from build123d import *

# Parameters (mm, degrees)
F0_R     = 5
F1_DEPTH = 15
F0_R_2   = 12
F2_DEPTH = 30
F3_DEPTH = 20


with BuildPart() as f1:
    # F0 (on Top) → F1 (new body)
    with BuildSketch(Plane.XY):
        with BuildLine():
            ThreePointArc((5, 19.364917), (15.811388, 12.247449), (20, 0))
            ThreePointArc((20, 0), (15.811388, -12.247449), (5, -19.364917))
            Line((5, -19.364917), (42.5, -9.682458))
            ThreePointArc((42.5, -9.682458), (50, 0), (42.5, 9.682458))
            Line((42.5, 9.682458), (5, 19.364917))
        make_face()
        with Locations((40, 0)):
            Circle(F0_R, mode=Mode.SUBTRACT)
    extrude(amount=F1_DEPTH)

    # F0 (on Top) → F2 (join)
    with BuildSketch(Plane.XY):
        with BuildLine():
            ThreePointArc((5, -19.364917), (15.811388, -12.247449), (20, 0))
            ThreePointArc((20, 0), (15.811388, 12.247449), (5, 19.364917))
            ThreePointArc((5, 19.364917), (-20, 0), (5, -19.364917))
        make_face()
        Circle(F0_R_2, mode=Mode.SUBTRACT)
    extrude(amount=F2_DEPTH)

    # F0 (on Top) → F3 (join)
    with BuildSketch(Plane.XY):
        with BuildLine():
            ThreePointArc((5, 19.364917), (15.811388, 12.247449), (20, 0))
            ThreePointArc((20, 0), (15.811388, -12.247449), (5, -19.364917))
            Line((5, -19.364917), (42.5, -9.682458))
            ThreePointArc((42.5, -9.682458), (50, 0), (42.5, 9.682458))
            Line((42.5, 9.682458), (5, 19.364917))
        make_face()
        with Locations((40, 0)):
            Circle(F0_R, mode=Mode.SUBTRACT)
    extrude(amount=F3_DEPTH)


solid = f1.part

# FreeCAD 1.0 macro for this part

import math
import FreeCAD as App
import Part
import Sketcher
from FreeCAD import Vector

doc = App.newDocument("Part")
params = doc.addObject("Spreadsheet::Sheet", "Params")
for row, (alias, value) in enumerate([
    ("sketch1_diameter", "10 mm"),
    ("sketch1_radius", "20.000001 mm"),
    ("sketch1_radius2", "10 mm"),
    ("pad1_length", "15 mm"),
    ("sketch2_diameter", "24 mm"),
    ("sketch2_radius", "20.000001 mm"),
    ("pad2_length", "30 mm"),
    ("sketch3_diameter", "10 mm"),
    ("sketch3_radius", "20.000001 mm"),
    ("sketch3_radius2", "10 mm"),
    ("pad3_length", "20 mm"),
], start=1):
    params.set(f"A{row}", alias)
    params.set(f"B{row}", "=" + value)
    params.setAlias(f"B{row}", alias)

body = doc.addObject("PartDesign::Body", "Body")

# Sketch on XY plane
sketch1 = body.newObject("Sketcher::SketchObject", "Sketch")
sketch1.AttachmentSupport = (doc.getObject("XY_Plane"), [""])
sketch1.MapMode = "FlatFace"
sketch1.addGeometry(Part.ArcOfCircle(Part.Circle(Vector(-0.000001, 0, 0), Vector(0, 0, 1), 20.000001), math.radians(0.000001), math.radians(75.522486)), False)
sketch1.addGeometry(Part.ArcOfCircle(Part.Circle(Vector(-0.000001, 0, 0), Vector(0, 0, 1), 20.000001), math.radians(-75.522486), math.radians(-0.000001)), False)
sketch1.addGeometry(Part.LineSegment(Vector(5, -19.364917, 0), Vector(42.5, -9.682458, 0)), False)
sketch1.addGeometry(Part.ArcOfCircle(Part.Circle(Vector(40, 0, 0), Vector(0, 0, 1), 10), math.radians(-75.52249), math.radians(75.52249)), False)
sketch1.addGeometry(Part.LineSegment(Vector(42.5, 9.682458, 0), Vector(5, 19.364917, 0)), False)
sketch1.addGeometry(Part.Circle(Vector(40, 0, 0), Vector(0, 0, 1), 5), False)
sketch1.addConstraint(Sketcher.Constraint("Tangent", 0, 1, 1, 2))
sketch1.addConstraint(Sketcher.Constraint("Tangent", 1, 1, 2, 1))
sketch1.addConstraint(Sketcher.Constraint("Tangent", 2, 2, 3, 1))
sketch1.addConstraint(Sketcher.Constraint("Tangent", 3, 2, 4, 1))
sketch1.addConstraint(Sketcher.Constraint("Tangent", 4, 2, 0, 2))
sketch1.addConstraint(Sketcher.Constraint("Coincident", 0, 3, -1, 1))
sketch1.addConstraint(Sketcher.Constraint("Coincident", 5, 3, 3, 3))
sketch1.addConstraint(Sketcher.Constraint("Equal", 0, 1))
sketch1.addConstraint(Sketcher.Constraint("PointOnObject", 3, 3, -1))
sketch1.addConstraint(Sketcher.Constraint("PointOnObject", 0, 1, -1))
sketch1.addConstraint(Sketcher.Constraint("Diameter", 5, 10.0))
sketch1.addConstraint(Sketcher.Constraint("Radius", 0, 20.000001))
sketch1.addConstraint(Sketcher.Constraint("Radius", 3, 10.0))
sketch1.addConstraint(Sketcher.Constraint("DistanceX", -1, 1, 3, 3, 40.0))
sketch1.setExpression("Constraints[10]", "Params.sketch1_diameter")
sketch1.setExpression("Constraints[11]", "Params.sketch1_radius")
sketch1.setExpression("Constraints[12]", "Params.sketch1_radius2")
pad1 = body.newObject("PartDesign::Pad", "Pad")
pad1.Profile = sketch1
pad1.setExpression("Length", "Params.pad1_length")

# Sketch on XY plane
sketch2 = body.newObject("Sketcher::SketchObject", "Sketch001")
sketch2.AttachmentSupport = (doc.getObject("XY_Plane"), [""])
sketch2.MapMode = "FlatFace"
sketch2.addGeometry(Part.ArcOfCircle(Part.Circle(Vector(-0.000001, 0, 0), Vector(0, 0, 1), 20.000001), math.radians(-75.522486), math.radians(-0.000001)), False)
sketch2.addGeometry(Part.ArcOfCircle(Part.Circle(Vector(-0.000001, 0, 0), Vector(0, 0, 1), 20.000001), math.radians(0.000001), math.radians(75.522486)), False)
sketch2.addGeometry(Part.ArcOfCircle(Part.Circle(Vector(0, 0, 0), Vector(0, 0, 1), 20), math.radians(75.522489), math.radians(284.477511)), False)
sketch2.addGeometry(Part.Circle(Vector(0, 0, 0), Vector(0, 0, 1), 12), False)
sketch2.addConstraint(Sketcher.Constraint("Tangent", 0, 2, 1, 1))
sketch2.addConstraint(Sketcher.Constraint("Tangent", 1, 2, 2, 1))
sketch2.addConstraint(Sketcher.Constraint("Tangent", 2, 2, 0, 1))
sketch2.addConstraint(Sketcher.Constraint("Coincident", 0, 3, -1, 1))
sketch2.addConstraint(Sketcher.Constraint("Coincident", 3, 3, -1, 1))
sketch2.addConstraint(Sketcher.Constraint("PointOnObject", 0, 2, -1))
sketch2.addConstraint(Sketcher.Constraint("Vertical", 1, 2, 2, 2))
sketch2.addConstraint(Sketcher.Constraint("Diameter", 3, 24.0))
sketch2.addConstraint(Sketcher.Constraint("Radius", 0, 20.000001))
sketch2.addConstraint(Sketcher.Constraint("DistanceX", -1, 1, 1, 2, 5.0))
sketch2.setExpression("Constraints[7]", "Params.sketch2_diameter")
sketch2.setExpression("Constraints[8]", "Params.sketch2_radius")
pad2 = body.newObject("PartDesign::Pad", "Pad001")
pad2.Profile = sketch2
pad2.setExpression("Length", "Params.pad2_length")

# Sketch on XY plane
sketch3 = body.newObject("Sketcher::SketchObject", "Sketch002")
sketch3.AttachmentSupport = (doc.getObject("XY_Plane"), [""])
sketch3.MapMode = "FlatFace"
sketch3.addGeometry(Part.ArcOfCircle(Part.Circle(Vector(-0.000001, 0, 0), Vector(0, 0, 1), 20.000001), math.radians(0.000001), math.radians(75.522486)), False)
sketch3.addGeometry(Part.ArcOfCircle(Part.Circle(Vector(-0.000001, 0, 0), Vector(0, 0, 1), 20.000001), math.radians(-75.522486), math.radians(-0.000001)), False)
sketch3.addGeometry(Part.LineSegment(Vector(5, -19.364917, 0), Vector(42.5, -9.682458, 0)), False)
sketch3.addGeometry(Part.ArcOfCircle(Part.Circle(Vector(40, 0, 0), Vector(0, 0, 1), 10), math.radians(-75.52249), math.radians(75.52249)), False)
sketch3.addGeometry(Part.LineSegment(Vector(42.5, 9.682458, 0), Vector(5, 19.364917, 0)), False)
sketch3.addGeometry(Part.Circle(Vector(40, 0, 0), Vector(0, 0, 1), 5), False)
sketch3.addConstraint(Sketcher.Constraint("Tangent", 0, 1, 1, 2))
sketch3.addConstraint(Sketcher.Constraint("Tangent", 1, 1, 2, 1))
sketch3.addConstraint(Sketcher.Constraint("Tangent", 2, 2, 3, 1))
sketch3.addConstraint(Sketcher.Constraint("Tangent", 3, 2, 4, 1))
sketch3.addConstraint(Sketcher.Constraint("Tangent", 4, 2, 0, 2))
sketch3.addConstraint(Sketcher.Constraint("Coincident", 0, 3, -1, 1))
sketch3.addConstraint(Sketcher.Constraint("Coincident", 5, 3, 3, 3))
sketch3.addConstraint(Sketcher.Constraint("Equal", 0, 1))
sketch3.addConstraint(Sketcher.Constraint("PointOnObject", 3, 3, -1))
sketch3.addConstraint(Sketcher.Constraint("PointOnObject", 0, 1, -1))
sketch3.addConstraint(Sketcher.Constraint("Diameter", 5, 10.0))
sketch3.addConstraint(Sketcher.Constraint("Radius", 0, 20.000001))
sketch3.addConstraint(Sketcher.Constraint("Radius", 3, 10.0))
sketch3.addConstraint(Sketcher.Constraint("DistanceX", -1, 1, 3, 3, 40.0))
sketch3.setExpression("Constraints[10]", "Params.sketch3_diameter")
sketch3.setExpression("Constraints[11]", "Params.sketch3_radius")
sketch3.setExpression("Constraints[12]", "Params.sketch3_radius2")
pad3 = body.newObject("PartDesign::Pad", "Pad002")
pad3.Profile = sketch3
pad3.setExpression("Length", "Params.pad3_length")

doc.recompute()
